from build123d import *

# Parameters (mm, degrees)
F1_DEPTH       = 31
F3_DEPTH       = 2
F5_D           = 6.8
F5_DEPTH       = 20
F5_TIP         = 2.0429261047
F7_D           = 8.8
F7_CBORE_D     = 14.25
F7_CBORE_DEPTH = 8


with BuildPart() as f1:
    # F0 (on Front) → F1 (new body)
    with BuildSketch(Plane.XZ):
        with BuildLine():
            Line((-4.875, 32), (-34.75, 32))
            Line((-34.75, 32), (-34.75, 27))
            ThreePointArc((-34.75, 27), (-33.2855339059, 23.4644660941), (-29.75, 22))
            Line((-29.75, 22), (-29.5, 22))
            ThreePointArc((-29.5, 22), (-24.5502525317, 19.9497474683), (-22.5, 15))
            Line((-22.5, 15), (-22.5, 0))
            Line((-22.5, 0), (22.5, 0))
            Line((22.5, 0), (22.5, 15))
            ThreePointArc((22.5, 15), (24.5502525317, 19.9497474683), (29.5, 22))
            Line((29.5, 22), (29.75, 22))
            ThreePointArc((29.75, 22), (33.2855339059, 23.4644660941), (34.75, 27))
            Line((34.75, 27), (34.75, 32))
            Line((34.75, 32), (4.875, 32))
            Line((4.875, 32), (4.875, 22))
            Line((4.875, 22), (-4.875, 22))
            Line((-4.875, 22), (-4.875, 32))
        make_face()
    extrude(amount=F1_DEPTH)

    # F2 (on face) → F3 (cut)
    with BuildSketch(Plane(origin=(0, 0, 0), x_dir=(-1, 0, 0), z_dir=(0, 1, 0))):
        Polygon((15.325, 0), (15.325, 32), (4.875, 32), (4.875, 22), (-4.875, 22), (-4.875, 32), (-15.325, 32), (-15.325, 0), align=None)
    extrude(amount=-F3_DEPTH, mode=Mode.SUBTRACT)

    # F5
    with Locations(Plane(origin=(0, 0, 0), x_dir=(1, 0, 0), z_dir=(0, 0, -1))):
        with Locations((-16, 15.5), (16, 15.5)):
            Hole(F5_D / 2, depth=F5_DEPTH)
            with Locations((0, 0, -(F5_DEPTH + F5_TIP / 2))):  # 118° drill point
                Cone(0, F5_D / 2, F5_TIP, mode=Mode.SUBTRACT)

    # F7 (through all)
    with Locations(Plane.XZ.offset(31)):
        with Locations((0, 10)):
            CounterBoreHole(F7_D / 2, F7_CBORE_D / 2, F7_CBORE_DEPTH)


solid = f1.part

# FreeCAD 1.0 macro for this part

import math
import FreeCAD as App
import Part
import Sketcher
Q = App.Units.Quantity

doc = App.newDocument("Part")
body = doc.addObject("PartDesign::Body", "Body")

# Sketch on XZ plane
sketch1 = body.newObject("Sketcher::SketchObject", "Sketch")
sketch1.AttachmentSupport = (doc.getObject("XZ_Plane"), [""])
sketch1.MapMode = "FlatFace"
sketch1.addGeometry(Part.LineSegment(App.Vector(-4.88, 32, 0), App.Vector(-34.75, 32, 0)), False)
sketch1.addGeometry(Part.LineSegment(App.Vector(-34.75, 32, 0), App.Vector(-34.75, 27, 0)), False)
sketch1.addGeometry(Part.ArcOfCircle(Part.Circle(App.Vector(-29.75, 27, 0), App.Vector(0, 0, 1), 5), math.radians(180), math.radians(270)), False)
sketch1.addGeometry(Part.LineSegment(App.Vector(-29.75, 22, 0), App.Vector(-29.5, 22, 0)), False)
sketch1.addGeometry(Part.ArcOfCircle(Part.Circle(App.Vector(-29.5, 15, 0), App.Vector(0, 0, 1), 7), math.radians(0), math.radians(90)), False)
sketch1.addGeometry(Part.LineSegment(App.Vector(-22.5, 15, 0), App.Vector(-22.5, 0, 0)), False)
sketch1.addGeometry(Part.LineSegment(App.Vector(-22.5, 0, 0), App.Vector(22.5, 0, 0)), False)
sketch1.addGeometry(Part.LineSegment(App.Vector(22.5, 0, 0), App.Vector(22.5, 15, 0)), False)
sketch1.addGeometry(Part.ArcOfCircle(Part.Circle(App.Vector(29.5, 15, 0), App.Vector(0, 0, 1), 7), math.radians(90), math.radians(180)), False)
sketch1.addGeometry(Part.LineSegment(App.Vector(29.5, 22, 0), App.Vector(29.75, 22, 0)), False)
sketch1.addGeometry(Part.ArcOfCircle(Part.Circle(App.Vector(29.75, 27, 0), App.Vector(0, 0, 1), 5), math.radians(-90), math.radians(0)), False)
sketch1.addGeometry(Part.LineSegment(App.Vector(34.75, 27, 0), App.Vector(34.75, 32, 0)), False)
sketch1.addGeometry(Part.LineSegment(App.Vector(34.75, 32, 0), App.Vector(4.88, 32, 0)), False)
sketch1.addGeometry(Part.LineSegment(App.Vector(4.88, 32, 0), App.Vector(4.88, 22, 0)), False)
sketch1.addGeometry(Part.LineSegment(App.Vector(4.88, 22, 0), App.Vector(-4.88, 22, 0)), False)
sketch1.addGeometry(Part.LineSegment(App.Vector(-4.88, 22, 0), App.Vector(-4.88, 32, 0)), False)
sketch1.addConstraint(Sketcher.Constraint("Coincident", 0, 2, 1, 1))
sketch1.addConstraint(Sketcher.Constraint("Tangent", 1, 2, 2, 1))
sketch1.addConstraint(Sketcher.Constraint("Tangent", 2, 2, 3, 1))
sketch1.addConstraint(Sketcher.Constraint("Tangent", 3, 2, 4, 2))
sketch1.addConstraint(Sketcher.Constraint("Tangent", 4, 1, 5, 1))
sketch1.addConstraint(Sketcher.Constraint("Coincident", 5, 2, 6, 1))
sketch1.addConstraint(Sketcher.Constraint("Coincident", 6, 2, 7, 1))
sketch1.addConstraint(Sketcher.Constraint("Tangent", 7, 2, 8, 2))
sketch1.addConstraint(Sketcher.Constraint("Tangent", 8, 1, 9, 1))
sketch1.addConstraint(Sketcher.Constraint("Tangent", 9, 2, 10, 1))
sketch1.addConstraint(Sketcher.Constraint("Tangent", 10, 2, 11, 1))
sketch1.addConstraint(Sketcher.Constraint("Coincident", 11, 2, 12, 1))
sketch1.addConstraint(Sketcher.Constraint("Coincident", 12, 2, 13, 1))
sketch1.addConstraint(Sketcher.Constraint("Coincident", 13, 2, 14, 1))
sketch1.addConstraint(Sketcher.Constraint("Coincident", 14, 2, 15, 1))
sketch1.addConstraint(Sketcher.Constraint("Coincident", 15, 2, 0, 1))
sketch1.addConstraint(Sketcher.Constraint("Horizontal", 0))
sketch1.addConstraint(Sketcher.Constraint("Vertical", 1))
sketch1.addConstraint(Sketcher.Constraint("Horizontal", 3))
sketch1.addConstraint(Sketcher.Constraint("Vertical", 5))
sketch1.addConstraint(Sketcher.Constraint("Horizontal", 6))
sketch1.addConstraint(Sketcher.Constraint("Vertical", 7))
sketch1.addConstraint(Sketcher.Constraint("Horizontal", 9))
sketch1.addConstraint(Sketcher.Constraint("Vertical", 11))
sketch1.addConstraint(Sketcher.Constraint("Horizontal", 12))
sketch1.addConstraint(Sketcher.Constraint("Vertical", 13))
sketch1.addConstraint(Sketcher.Constraint("Horizontal", 14))
sketch1.addConstraint(Sketcher.Constraint("Vertical", 15))
sketch1.addConstraint(Sketcher.Constraint("Equal", 4, 8))
sketch1.addConstraint(Sketcher.Constraint("Equal", 2, 10))
sketch1.addConstraint(Sketcher.Constraint("Symmetric", 5, 2, 6, 2, -1, 1))
sketch1.addConstraint(Sketcher.Constraint("Symmetric", 2, 3, 10, 3, -2))
sketch1.addConstraint(Sketcher.Constraint("Symmetric", 12, 2, 15, 2, -2))
sketch1.addConstraint(Sketcher.Constraint("Horizontal", 9, 2, 13, 2))
sketch1.addConstraint(Sketcher.Constraint("Radius", 2, Q("5 mm")))
sketch1.addConstraint(Sketcher.Constraint("Radius", 4, Q("7 mm")))
sketch1.addConstraint(Sketcher.Constraint("DistanceX", 6, 1, 6, 2, Q("45 mm")))
sketch1.addConstraint(Sketcher.Constraint("DistanceY", 1, 2, 1, 1, Q("5 mm")))
sketch1.addConstraint(Sketcher.Constraint("DistanceY", 5, 2, 5, 1, Q("15 mm")))
sketch1.addConstraint(Sketcher.Constraint("DistanceX", 3, 1, 3, 2, Q("0.25 mm")))
sketch1.addConstraint(Sketcher.Constraint("DistanceX", 14, 2, 14, 1, Q("9.75 mm")))
pad1 = body.newObject("PartDesign::Pad", "Pad")
pad1.Profile = sketch1
pad1.Length = 31

# Sketch on XZ plane
sketch2 = body.newObject("Sketcher::SketchObject", "Sketch001")
sketch2.AttachmentSupport = (doc.getObject("XZ_Plane"), [""])
sketch2.MapMode = "FlatFace"
sketch2.addGeometry(Part.LineSegment(App.Vector(-15, 0, 0), App.Vector(-15, 32, 0)), False)
sketch2.addGeometry(Part.LineSegment(App.Vector(-15, 32, 0), App.Vector(-5, 32, 0)), False)
sketch2.addGeometry(Part.LineSegment(App.Vector(-5, 32, 0), App.Vector(-5, 22, 0)), False)
sketch2.addGeometry(Part.LineSegment(App.Vector(-5, 22, 0), App.Vector(5, 22, 0)), False)
sketch2.addGeometry(Part.LineSegment(App.Vector(5, 22, 0), App.Vector(5, 32, 0)), False)
sketch2.addGeometry(Part.LineSegment(App.Vector(5, 32, 0), App.Vector(15, 32, 0)), False)
sketch2.addGeometry(Part.LineSegment(App.Vector(15, 32, 0), App.Vector(15, 0, 0)), False)
sketch2.addGeometry(Part.LineSegment(App.Vector(15, 0, 0), App.Vector(-15, 0, 0)), False)
sketch2.addConstraint(Sketcher.Constraint("Coincident", 0, 2, 1, 1))
sketch2.addConstraint(Sketcher.Constraint("Coincident", 1, 2, 2, 1))
sketch2.addConstraint(Sketcher.Constraint("Coincident", 2, 2, 3, 1))
sketch2.addConstraint(Sketcher.Constraint("Coincident", 3, 2, 4, 1))
sketch2.addConstraint(Sketcher.Constraint("Coincident", 4, 2, 5, 1))
sketch2.addConstraint(Sketcher.Constraint("Coincident", 5, 2, 6, 1))
sketch2.addConstraint(Sketcher.Constraint("Coincident", 6, 2, 7, 1))
sketch2.addConstraint(Sketcher.Constraint("Coincident", 7, 2, 0, 1))
sketch2.addConstraint(Sketcher.Constraint("Vertical", 0))
sketch2.addConstraint(Sketcher.Constraint("Horizontal", 1))
sketch2.addConstraint(Sketcher.Constraint("Vertical", 2))
sketch2.addConstraint(Sketcher.Constraint("Horizontal", 3))
sketch2.addConstraint(Sketcher.Constraint("Vertical", 4))
sketch2.addConstraint(Sketcher.Constraint("Horizontal", 5))
sketch2.addConstraint(Sketcher.Constraint("Vertical", 6))
sketch2.addConstraint(Sketcher.Constraint("Horizontal", 7))
sketch2.addConstraint(Sketcher.Constraint("Symmetric", 6, 2, 7, 2, -1, 1))
sketch2.addConstraint(Sketcher.Constraint("Symmetric", 1, 2, 4, 2, -2))
sketch2.addConstraint(Sketcher.Constraint("DistanceY", 0, 1, 0, 2, Q("32 mm")))
sketch2.addConstraint(Sketcher.Constraint("DistanceY", 2, 2, 2, 1, Q("10 mm")))
sketch2.addConstraint(Sketcher.Constraint("DistanceX", 1, 1, 1, 2, Q("10.45 mm")))
sketch2.addConstraint(Sketcher.Constraint("DistanceX", 3, 1, 3, 2, Q("9.75 mm")))
pocket1 = body.newObject("PartDesign::Pocket", "Pocket")
pocket1.Profile = sketch2
pocket1.Length = 2
pocket1.Reversed = True

# Sketch on XY plane
sketch3 = body.newObject("Sketcher::SketchObject", "Sketch002")
sketch3.AttachmentSupport = (doc.getObject("XY_Plane"), [""])
sketch3.MapMode = "FlatFace"
sketch3.addGeometry(Part.Circle(App.Vector(-16, -15.5, 0), App.Vector(0, 0, 1), 3.4), False)
sketch3.addGeometry(Part.Circle(App.Vector(16, -15.5, 0), App.Vector(0, 0, 1), 3.4), False)
sketch3.addConstraint(Sketcher.Constraint("Equal", 0, 1))
sketch3.addConstraint(Sketcher.Constraint("Symmetric", 0, 3, 1, 3, -2))
sketch3.addConstraint(Sketcher.Constraint("Diameter", 0, Q("6.8 mm")))
sketch3.addConstraint(Sketcher.Constraint("DistanceX", 0, 3, -1, 1, Q("16 mm")))
sketch3.addConstraint(Sketcher.Constraint("DistanceY", 0, 3, -1, 1, Q("15.5 mm")))
doc.recompute()
hole = body.newObject("PartDesign::Hole", "Hole")
hole.Profile = sketch3
hole.ThreadType = "None"
hole.Diameter = 6.8
hole.DepthType = "Dimension"
hole.Depth = 20
hole.DrillPoint = "Angled"
hole.DrillPointAngle = 118
hole.Reversed = True

# Sketch on XZ plane
sketch4 = body.newObject("Sketcher::SketchObject", "Sketch003")
sketch4.AttachmentSupport = (doc.getObject("XZ_Plane"), [""])
sketch4.MapMode = "FlatFace"
sketch4.AttachmentOffset = App.Placement(App.Vector(0, 0, 31), App.Rotation())
sketch4.addGeometry(Part.Circle(App.Vector(0, 10, 0), App.Vector(0, 0, 1), 4.4), False)
sketch4.addConstraint(Sketcher.Constraint("PointOnObject", 0, 3, -2))
sketch4.addConstraint(Sketcher.Constraint("Diameter", 0, Q("8.8 mm")))
sketch4.addConstraint(Sketcher.Constraint("DistanceY", -1, 1, 0, 3, Q("10 mm")))
doc.recompute()
hole2 = body.newObject("PartDesign::Hole", "Hole001")
hole2.Profile = sketch4
hole2.ThreadType = "None"
hole2.Diameter = 8.8
hole2.DepthType = "ThroughAll"
hole2.HoleCutType = "Counterbore"
hole2.HoleCutDiameter = 14.25
hole2.HoleCutDepth = 8

doc.recompute()
